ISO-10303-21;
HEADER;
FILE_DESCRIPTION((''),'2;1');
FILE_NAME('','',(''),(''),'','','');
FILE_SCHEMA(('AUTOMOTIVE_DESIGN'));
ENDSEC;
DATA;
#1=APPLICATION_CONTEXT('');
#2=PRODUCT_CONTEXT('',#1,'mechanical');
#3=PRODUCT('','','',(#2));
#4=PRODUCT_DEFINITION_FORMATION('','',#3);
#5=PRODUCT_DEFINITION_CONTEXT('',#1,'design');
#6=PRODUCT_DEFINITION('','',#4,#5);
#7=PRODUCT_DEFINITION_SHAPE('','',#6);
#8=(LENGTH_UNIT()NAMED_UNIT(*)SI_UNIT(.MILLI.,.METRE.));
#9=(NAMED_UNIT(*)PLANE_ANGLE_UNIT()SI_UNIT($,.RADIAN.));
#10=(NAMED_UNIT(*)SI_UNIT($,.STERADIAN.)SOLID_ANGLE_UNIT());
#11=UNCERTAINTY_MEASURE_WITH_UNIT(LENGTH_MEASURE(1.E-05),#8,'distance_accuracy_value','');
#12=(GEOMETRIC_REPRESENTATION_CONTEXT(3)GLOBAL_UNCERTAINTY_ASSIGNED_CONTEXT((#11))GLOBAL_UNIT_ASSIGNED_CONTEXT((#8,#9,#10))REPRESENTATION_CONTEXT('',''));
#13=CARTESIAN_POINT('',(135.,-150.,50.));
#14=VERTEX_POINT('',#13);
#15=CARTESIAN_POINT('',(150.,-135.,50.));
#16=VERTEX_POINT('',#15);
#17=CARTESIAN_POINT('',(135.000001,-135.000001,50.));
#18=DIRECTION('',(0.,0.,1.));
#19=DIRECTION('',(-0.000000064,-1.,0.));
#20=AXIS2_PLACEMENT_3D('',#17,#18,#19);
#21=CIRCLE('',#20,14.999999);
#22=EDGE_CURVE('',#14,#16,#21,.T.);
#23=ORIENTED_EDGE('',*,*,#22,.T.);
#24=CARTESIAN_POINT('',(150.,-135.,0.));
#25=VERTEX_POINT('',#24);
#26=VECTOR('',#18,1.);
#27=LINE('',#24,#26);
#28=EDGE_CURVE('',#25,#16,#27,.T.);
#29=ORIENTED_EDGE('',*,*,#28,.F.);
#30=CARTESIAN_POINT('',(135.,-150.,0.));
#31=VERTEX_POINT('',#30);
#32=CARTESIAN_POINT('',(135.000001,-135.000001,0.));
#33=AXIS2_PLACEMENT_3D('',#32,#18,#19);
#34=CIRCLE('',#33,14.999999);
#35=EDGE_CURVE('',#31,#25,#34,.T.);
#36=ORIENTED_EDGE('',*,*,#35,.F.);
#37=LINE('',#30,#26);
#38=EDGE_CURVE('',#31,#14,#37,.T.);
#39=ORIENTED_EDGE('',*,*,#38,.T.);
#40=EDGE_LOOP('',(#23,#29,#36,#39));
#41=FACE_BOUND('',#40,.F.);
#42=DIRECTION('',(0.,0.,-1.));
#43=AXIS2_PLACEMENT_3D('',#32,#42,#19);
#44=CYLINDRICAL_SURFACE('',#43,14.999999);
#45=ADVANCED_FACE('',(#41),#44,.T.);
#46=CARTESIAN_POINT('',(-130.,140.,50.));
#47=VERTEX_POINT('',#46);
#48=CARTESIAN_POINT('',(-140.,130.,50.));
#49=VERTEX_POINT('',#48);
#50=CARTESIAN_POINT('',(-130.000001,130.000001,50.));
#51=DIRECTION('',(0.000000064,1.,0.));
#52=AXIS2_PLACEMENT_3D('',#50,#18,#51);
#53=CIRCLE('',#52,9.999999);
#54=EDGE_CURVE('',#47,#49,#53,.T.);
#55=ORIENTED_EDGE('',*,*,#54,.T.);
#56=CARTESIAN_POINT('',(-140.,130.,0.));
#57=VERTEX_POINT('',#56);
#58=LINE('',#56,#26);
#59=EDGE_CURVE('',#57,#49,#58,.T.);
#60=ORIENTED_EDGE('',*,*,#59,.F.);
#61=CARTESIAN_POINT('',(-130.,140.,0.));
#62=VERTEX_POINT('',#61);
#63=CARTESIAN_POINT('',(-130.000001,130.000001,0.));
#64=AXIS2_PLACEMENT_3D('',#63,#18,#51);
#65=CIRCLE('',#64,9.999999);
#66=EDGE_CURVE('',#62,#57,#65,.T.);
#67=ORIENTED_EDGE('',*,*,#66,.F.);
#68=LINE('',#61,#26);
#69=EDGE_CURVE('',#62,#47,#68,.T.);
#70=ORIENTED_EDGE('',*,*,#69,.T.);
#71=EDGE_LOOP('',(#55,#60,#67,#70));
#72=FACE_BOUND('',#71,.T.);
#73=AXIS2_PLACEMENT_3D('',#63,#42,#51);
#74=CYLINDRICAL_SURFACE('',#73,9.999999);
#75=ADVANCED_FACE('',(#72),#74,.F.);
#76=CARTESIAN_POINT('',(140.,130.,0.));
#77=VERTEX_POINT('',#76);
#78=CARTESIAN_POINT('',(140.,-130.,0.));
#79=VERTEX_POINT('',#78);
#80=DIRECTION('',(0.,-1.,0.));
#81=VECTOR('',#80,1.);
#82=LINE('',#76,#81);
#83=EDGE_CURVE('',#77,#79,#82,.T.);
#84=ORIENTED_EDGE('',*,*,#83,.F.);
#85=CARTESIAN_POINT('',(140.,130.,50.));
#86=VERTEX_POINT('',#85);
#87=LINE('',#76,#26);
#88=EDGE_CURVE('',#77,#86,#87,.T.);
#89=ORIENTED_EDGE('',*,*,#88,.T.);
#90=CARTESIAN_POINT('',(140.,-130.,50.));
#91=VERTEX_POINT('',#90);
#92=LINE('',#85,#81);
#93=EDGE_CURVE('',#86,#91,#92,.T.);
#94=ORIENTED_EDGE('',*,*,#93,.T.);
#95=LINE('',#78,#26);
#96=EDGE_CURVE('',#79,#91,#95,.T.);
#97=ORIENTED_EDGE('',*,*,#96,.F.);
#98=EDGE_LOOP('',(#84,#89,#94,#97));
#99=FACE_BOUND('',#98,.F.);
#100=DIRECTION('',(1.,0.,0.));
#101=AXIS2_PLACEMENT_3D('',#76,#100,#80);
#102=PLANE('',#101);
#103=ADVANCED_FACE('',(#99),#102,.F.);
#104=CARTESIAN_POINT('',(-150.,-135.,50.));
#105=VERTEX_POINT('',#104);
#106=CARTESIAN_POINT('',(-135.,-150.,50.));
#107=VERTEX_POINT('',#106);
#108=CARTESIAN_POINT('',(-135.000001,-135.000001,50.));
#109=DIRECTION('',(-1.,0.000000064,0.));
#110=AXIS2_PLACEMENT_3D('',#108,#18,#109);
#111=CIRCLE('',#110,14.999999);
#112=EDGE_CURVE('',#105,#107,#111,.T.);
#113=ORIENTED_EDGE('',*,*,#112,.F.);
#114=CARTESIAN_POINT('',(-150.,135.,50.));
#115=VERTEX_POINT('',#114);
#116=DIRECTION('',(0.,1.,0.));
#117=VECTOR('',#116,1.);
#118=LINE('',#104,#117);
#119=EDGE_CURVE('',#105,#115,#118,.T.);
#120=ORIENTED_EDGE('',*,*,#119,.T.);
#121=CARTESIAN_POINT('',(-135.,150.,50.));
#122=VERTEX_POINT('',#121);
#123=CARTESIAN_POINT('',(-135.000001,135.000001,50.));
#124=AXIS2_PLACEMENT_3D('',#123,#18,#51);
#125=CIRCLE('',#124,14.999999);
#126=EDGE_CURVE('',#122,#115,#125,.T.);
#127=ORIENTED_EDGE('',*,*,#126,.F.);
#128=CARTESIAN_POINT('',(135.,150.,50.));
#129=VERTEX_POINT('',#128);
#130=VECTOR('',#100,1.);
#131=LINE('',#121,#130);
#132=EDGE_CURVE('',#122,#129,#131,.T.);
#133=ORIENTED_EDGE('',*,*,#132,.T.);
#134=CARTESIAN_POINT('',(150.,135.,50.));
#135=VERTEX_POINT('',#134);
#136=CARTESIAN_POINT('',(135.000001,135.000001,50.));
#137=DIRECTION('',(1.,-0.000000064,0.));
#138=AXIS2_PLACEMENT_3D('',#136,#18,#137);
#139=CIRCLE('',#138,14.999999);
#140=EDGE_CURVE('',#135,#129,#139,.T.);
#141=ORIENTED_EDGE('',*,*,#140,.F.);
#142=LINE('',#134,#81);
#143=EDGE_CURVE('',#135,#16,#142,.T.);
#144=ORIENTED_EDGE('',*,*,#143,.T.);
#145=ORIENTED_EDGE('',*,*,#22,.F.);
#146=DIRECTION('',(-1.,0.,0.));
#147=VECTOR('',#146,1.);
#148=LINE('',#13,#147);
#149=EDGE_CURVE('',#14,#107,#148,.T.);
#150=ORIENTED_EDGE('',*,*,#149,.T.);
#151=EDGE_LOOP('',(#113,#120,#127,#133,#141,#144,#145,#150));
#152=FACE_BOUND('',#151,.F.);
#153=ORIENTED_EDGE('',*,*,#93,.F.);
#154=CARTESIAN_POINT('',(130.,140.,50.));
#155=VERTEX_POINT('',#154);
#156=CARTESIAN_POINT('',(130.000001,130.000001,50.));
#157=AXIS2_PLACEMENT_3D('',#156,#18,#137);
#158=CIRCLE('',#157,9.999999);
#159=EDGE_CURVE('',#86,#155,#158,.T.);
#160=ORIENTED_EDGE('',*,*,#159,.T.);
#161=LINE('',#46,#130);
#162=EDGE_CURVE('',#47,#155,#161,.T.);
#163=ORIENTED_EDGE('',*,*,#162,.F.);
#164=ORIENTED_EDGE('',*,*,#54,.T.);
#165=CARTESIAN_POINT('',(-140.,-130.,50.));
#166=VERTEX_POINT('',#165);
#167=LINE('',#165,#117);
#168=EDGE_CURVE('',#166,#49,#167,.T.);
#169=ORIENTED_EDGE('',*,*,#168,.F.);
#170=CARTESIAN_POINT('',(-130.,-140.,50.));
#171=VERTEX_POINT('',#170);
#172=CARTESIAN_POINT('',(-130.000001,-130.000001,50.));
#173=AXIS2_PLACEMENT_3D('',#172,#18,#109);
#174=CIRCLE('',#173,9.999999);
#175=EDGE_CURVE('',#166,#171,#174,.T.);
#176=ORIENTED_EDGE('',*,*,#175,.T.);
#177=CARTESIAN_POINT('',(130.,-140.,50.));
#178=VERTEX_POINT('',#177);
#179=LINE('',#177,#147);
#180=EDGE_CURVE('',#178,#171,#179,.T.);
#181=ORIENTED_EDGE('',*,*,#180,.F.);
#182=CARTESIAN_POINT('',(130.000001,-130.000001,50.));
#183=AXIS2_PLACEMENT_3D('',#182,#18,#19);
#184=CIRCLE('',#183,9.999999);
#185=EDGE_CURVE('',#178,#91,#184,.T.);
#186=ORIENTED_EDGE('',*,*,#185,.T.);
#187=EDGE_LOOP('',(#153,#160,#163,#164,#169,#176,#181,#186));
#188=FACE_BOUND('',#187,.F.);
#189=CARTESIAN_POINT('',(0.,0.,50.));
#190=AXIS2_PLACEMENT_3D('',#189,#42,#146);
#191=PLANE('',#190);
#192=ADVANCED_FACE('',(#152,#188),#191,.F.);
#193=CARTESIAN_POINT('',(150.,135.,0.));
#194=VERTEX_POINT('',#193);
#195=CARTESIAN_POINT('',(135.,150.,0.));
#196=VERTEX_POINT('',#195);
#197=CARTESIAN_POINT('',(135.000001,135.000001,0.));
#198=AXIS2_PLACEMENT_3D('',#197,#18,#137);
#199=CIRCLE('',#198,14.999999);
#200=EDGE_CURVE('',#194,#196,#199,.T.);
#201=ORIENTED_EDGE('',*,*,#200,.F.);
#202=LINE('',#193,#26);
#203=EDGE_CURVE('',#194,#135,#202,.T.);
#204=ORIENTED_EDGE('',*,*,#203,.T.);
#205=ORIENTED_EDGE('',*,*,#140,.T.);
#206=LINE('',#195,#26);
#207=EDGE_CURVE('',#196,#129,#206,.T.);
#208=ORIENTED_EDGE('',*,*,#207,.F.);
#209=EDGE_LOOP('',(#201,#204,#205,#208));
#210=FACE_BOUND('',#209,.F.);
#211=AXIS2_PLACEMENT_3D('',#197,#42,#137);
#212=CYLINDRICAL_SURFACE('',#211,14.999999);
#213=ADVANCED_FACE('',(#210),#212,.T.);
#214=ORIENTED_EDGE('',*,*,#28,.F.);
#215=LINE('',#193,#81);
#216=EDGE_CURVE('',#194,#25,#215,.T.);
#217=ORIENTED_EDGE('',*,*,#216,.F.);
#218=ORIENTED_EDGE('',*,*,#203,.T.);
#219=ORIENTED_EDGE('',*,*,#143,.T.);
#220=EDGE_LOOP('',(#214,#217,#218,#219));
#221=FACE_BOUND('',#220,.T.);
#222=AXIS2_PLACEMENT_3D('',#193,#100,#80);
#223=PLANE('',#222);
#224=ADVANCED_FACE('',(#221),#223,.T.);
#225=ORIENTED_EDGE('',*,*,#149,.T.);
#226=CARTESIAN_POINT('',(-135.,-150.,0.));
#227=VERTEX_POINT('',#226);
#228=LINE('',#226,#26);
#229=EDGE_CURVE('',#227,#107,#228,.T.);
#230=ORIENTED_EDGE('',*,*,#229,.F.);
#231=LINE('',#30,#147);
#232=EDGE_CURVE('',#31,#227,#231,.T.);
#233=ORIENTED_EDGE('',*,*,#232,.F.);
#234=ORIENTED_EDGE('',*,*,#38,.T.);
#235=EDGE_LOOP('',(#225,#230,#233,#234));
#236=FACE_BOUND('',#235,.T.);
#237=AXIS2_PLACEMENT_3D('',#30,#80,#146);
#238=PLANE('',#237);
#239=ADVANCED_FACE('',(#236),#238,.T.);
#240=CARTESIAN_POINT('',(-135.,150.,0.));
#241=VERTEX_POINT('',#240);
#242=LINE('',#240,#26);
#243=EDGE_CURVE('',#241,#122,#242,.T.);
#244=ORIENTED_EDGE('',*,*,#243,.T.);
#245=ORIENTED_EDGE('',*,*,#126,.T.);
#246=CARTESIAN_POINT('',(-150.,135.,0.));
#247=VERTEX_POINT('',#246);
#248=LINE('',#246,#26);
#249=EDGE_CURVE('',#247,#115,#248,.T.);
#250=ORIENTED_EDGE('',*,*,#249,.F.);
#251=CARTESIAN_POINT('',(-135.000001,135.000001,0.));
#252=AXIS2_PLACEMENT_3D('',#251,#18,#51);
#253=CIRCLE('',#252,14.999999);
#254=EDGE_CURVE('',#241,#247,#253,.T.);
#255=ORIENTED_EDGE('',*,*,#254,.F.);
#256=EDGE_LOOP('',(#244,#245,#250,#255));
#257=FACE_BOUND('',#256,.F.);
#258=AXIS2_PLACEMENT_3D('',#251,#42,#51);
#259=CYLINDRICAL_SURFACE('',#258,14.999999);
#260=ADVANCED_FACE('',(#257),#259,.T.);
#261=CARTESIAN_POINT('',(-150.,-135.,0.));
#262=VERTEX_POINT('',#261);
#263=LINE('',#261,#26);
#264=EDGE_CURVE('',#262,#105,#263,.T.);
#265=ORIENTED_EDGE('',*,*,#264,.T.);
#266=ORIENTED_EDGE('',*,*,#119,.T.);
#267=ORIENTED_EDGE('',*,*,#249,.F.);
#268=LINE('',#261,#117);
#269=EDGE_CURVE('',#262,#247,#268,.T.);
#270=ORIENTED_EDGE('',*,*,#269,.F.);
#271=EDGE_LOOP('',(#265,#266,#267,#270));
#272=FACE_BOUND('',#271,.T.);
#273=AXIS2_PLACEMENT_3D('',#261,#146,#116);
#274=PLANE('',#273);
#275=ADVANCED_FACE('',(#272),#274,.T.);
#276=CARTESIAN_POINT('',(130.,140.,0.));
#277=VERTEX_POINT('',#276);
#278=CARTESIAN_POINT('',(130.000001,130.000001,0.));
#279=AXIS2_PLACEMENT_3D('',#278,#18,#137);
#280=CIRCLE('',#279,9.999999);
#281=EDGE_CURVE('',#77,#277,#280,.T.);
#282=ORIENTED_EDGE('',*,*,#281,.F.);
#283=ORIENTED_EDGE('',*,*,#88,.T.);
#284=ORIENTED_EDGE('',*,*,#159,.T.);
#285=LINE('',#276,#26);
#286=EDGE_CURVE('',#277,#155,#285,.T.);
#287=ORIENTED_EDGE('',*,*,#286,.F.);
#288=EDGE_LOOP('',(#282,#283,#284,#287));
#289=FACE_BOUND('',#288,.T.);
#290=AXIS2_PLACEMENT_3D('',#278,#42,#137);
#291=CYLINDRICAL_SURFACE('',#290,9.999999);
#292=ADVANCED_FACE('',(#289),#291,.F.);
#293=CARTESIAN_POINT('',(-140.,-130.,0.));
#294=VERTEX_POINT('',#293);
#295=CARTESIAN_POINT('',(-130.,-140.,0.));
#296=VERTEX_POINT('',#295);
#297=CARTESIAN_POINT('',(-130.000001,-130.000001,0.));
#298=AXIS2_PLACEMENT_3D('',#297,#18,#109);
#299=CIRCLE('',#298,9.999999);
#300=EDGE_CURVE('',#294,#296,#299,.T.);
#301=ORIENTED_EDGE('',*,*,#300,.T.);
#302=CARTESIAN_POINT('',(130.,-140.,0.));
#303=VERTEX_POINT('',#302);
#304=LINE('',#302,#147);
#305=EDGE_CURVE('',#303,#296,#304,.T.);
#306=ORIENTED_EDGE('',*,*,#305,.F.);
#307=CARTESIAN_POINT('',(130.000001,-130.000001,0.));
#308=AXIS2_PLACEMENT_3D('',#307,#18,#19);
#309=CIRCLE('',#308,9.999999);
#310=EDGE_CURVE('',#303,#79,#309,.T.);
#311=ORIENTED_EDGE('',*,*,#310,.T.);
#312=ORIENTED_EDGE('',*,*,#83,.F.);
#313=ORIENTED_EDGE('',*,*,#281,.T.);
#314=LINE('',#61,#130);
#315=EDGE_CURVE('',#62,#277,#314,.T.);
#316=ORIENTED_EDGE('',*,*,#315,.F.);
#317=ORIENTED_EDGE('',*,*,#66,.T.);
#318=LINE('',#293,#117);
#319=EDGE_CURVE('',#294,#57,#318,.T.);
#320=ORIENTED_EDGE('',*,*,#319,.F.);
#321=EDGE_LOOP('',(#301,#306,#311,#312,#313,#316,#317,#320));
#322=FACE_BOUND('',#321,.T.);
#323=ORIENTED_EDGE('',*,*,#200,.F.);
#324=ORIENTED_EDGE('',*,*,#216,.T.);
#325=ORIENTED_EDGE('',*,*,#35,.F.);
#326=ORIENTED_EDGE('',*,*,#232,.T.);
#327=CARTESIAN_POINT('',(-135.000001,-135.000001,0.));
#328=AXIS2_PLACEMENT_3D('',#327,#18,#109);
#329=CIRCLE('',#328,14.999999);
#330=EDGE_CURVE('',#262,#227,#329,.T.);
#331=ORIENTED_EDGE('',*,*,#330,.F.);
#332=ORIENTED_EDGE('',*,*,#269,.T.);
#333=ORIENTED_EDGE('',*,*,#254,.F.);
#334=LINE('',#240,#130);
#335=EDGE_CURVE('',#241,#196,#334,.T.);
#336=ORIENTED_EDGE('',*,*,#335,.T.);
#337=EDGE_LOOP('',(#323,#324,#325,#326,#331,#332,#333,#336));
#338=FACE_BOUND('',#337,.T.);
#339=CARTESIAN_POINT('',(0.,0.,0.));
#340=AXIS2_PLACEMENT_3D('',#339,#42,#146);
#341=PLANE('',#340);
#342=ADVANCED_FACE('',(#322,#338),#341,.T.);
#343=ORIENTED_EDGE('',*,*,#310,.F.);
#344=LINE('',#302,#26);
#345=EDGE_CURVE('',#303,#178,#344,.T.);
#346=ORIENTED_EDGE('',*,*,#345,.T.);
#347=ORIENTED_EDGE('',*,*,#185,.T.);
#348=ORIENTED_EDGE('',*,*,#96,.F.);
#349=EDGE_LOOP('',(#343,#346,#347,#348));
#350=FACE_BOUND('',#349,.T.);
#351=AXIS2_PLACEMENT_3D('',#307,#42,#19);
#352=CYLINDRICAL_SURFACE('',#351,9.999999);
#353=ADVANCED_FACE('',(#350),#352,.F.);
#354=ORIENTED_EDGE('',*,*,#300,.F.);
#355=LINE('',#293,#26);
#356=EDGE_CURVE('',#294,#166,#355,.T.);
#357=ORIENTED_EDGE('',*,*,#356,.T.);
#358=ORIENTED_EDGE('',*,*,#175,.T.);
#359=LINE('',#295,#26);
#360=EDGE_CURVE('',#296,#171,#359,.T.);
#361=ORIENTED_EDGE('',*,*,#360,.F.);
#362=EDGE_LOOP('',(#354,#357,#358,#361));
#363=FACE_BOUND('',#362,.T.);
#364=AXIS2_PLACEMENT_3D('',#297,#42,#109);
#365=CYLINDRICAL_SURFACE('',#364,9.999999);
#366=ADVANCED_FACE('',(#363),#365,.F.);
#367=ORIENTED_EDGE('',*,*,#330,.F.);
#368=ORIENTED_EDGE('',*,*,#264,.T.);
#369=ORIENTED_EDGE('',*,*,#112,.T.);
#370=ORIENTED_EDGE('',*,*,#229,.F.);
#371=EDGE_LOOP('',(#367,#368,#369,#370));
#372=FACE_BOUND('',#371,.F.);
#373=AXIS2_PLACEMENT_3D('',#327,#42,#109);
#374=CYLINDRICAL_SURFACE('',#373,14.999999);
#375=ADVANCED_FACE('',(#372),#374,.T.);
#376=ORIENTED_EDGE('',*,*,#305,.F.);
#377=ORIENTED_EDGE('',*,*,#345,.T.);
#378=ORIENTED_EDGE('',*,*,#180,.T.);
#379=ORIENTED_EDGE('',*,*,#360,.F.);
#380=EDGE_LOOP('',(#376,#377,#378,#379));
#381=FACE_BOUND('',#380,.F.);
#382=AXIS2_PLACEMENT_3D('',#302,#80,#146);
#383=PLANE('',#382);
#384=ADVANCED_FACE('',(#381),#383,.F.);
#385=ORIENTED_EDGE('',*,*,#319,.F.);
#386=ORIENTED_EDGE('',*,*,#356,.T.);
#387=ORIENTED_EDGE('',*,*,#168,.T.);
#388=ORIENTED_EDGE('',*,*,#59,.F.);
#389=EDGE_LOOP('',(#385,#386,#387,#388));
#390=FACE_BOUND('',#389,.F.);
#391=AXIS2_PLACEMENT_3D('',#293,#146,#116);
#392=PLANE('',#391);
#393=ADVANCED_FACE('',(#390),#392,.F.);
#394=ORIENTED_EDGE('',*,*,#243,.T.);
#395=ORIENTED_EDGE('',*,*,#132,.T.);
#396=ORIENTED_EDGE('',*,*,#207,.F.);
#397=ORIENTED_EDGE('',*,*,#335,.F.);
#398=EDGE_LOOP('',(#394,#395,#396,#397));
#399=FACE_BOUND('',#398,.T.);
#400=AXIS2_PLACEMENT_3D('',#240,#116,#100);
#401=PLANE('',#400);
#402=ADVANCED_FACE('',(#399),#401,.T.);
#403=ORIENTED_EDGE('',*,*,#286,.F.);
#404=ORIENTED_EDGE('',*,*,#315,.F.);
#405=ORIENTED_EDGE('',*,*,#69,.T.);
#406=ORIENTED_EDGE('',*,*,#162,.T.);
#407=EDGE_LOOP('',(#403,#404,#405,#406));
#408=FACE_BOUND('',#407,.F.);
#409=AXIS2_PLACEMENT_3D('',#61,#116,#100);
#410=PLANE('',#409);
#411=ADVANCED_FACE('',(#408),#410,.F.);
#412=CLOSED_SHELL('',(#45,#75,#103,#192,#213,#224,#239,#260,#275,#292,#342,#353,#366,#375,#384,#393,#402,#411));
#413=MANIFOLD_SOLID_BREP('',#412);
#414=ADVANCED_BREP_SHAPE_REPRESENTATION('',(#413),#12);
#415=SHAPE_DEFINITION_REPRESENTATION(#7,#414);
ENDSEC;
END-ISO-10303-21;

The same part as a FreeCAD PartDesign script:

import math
import FreeCAD as App
import Part
import Sketcher
from FreeCAD import Vector
Q = App.Units.Quantity

doc = App.newDocument("Part")
params = doc.addObject("Spreadsheet::Sheet", "Params")
for row, (alias, value) in enumerate([
    ("sketch1_radius", "14.999999 mm"),
    ("sketch1_radius2", "9.999999 mm"),
    ("sketch1_width", "270 mm"),
    ("sketch1_width2", "260 mm"),
    ("pad1_length", "50 mm"),
], start=1):
    params.set(f"A{row}", alias)
    params.set(f"B{row}", "=" + value)
    params.setAlias(f"B{row}", alias)

body = doc.addObject("PartDesign::Body", "Body")

# Sketch on XY plane
sketch1 = body.newObject("Sketcher::SketchObject", "Sketch")
sketch1.AttachmentSupport = (doc.getObject("XY_Plane"), [""])
sketch1.MapMode = "FlatFace"
sketch1.addGeometry([
    Part.LineSegment(Vector(135, 150, 0), Vector(-135, 150, 0)),  # 0
    Part.ArcOfCircle(Part.Circle(Vector(-135, 135, 0), Vector(0, 0, 1), 15), math.radians(90), math.radians(180)),  # 1
    Part.LineSegment(Vector(-150, 135, 0), Vector(-150, -135, 0)),  # 2
    Part.ArcOfCircle(Part.Circle(Vector(-135, -135, 0), Vector(0, 0, 1), 15), math.radians(180), math.radians(270)),  # 3
    Part.LineSegment(Vector(-135, -150, 0), Vector(135, -150, 0)),  # 4
    Part.ArcOfCircle(Part.Circle(Vector(135, -135, 0), Vector(0, 0, 1), 15), math.radians(-90), math.radians(0)),  # 5
    Part.LineSegment(Vector(150, -135, 0), Vector(150, 135, 0)),  # 6
    Part.ArcOfCircle(Part.Circle(Vector(135, 135, 0), Vector(0, 0, 1), 15), math.radians(0), math.radians(90)),  # 7
    Part.LineSegment(Vector(-130, 140, 0), Vector(130, 140, 0)),  # 8
    Part.ArcOfCircle(Part.Circle(Vector(130, 130, 0), Vector(0, 0, 1), 10), math.radians(0), math.radians(90)),  # 9
    Part.LineSegment(Vector(140, 130, 0), Vector(140, -130, 0)),  # 10
    Part.ArcOfCircle(Part.Circle(Vector(130, -130, 0), Vector(0, 0, 1), 10), math.radians(-90), math.radians(0)),  # 11
    Part.LineSegment(Vector(130, -140, 0), Vector(-130, -140, 0)),  # 12
    Part.ArcOfCircle(Part.Circle(Vector(-130, -130, 0), Vector(0, 0, 1), 10), math.radians(180), math.radians(270)),  # 13
    Part.LineSegment(Vector(-140, -130, 0), Vector(-140, 130, 0)),  # 14
    Part.ArcOfCircle(Part.Circle(Vector(-130, 130, 0), Vector(0, 0, 1), 10), math.radians(90), math.radians(180)),  # 15
], False)
sketch1.addConstraint([
    Sketcher.Constraint("Tangent", 0, 2, 1, 1),
    Sketcher.Constraint("Tangent", 1, 2, 2, 1),
    Sketcher.Constraint("Tangent", 2, 2, 3, 1),
    Sketcher.Constraint("Tangent", 3, 2, 4, 1),
    Sketcher.Constraint("Tangent", 4, 2, 5, 1),
    Sketcher.Constraint("Tangent", 5, 2, 6, 1),
    Sketcher.Constraint("Tangent", 6, 2, 7, 1),
    Sketcher.Constraint("Tangent", 7, 2, 0, 1),
    Sketcher.Constraint("Tangent", 8, 2, 9, 2),
    Sketcher.Constraint("Tangent", 9, 1, 10, 1),
    Sketcher.Constraint("Tangent", 10, 2, 11, 2),
    Sketcher.Constraint("Tangent", 11, 1, 12, 1),
    Sketcher.Constraint("Tangent", 12, 2, 13, 2),
    Sketcher.Constraint("Tangent", 13, 1, 14, 1),
    Sketcher.Constraint("Tangent", 14, 2, 15, 2),
    Sketcher.Constraint("Tangent", 15, 1, 8, 1),
    Sketcher.Constraint("Horizontal", 0),
    Sketcher.Constraint("Vertical", 2),
    Sketcher.Constraint("Horizontal", 4),
    Sketcher.Constraint("Vertical", 6),
    Sketcher.Constraint("Horizontal", 8),
    Sketcher.Constraint("Vertical", 10),
    Sketcher.Constraint("Horizontal", 12),
    Sketcher.Constraint("Vertical", 14),
    Sketcher.Constraint("Equal", 1, 3),
    Sketcher.Constraint("Equal", 3, 5),
    Sketcher.Constraint("Equal", 5, 7),
    Sketcher.Constraint("Equal", 9, 11),
    Sketcher.Constraint("Equal", 11, 13),
    Sketcher.Constraint("Equal", 13, 15),
    Sketcher.Constraint("Symmetric", 1, 3, 5, 3, -1, 1),
    Sketcher.Constraint("Symmetric", 9, 3, 13, 3, -1, 1),
    Sketcher.Constraint("Equal", 4, 2),
    Sketcher.Constraint("Equal", 12, 10),
    Sketcher.Constraint("Radius", 1, Q("14.999999 mm")),
    Sketcher.Constraint("Radius", 9, Q("9.999999 mm")),
    Sketcher.Constraint("DistanceX", 0, 2, 0, 1, Q("270 mm")),
    Sketcher.Constraint("DistanceX", 8, 1, 8, 2, Q("260 mm")),
])
sketch1.setExpression("Constraints[34]", "Params.sketch1_radius")
sketch1.setExpression("Constraints[35]", "Params.sketch1_radius2")
sketch1.setExpression("Constraints[36]", "Params.sketch1_width")
sketch1.setExpression("Constraints[37]", "Params.sketch1_width2")
pad1 = body.newObject("PartDesign::Pad", "Pad")
pad1.Profile = sketch1
pad1.setExpression("Length", "Params.pad1_length")

doc.recompute()
